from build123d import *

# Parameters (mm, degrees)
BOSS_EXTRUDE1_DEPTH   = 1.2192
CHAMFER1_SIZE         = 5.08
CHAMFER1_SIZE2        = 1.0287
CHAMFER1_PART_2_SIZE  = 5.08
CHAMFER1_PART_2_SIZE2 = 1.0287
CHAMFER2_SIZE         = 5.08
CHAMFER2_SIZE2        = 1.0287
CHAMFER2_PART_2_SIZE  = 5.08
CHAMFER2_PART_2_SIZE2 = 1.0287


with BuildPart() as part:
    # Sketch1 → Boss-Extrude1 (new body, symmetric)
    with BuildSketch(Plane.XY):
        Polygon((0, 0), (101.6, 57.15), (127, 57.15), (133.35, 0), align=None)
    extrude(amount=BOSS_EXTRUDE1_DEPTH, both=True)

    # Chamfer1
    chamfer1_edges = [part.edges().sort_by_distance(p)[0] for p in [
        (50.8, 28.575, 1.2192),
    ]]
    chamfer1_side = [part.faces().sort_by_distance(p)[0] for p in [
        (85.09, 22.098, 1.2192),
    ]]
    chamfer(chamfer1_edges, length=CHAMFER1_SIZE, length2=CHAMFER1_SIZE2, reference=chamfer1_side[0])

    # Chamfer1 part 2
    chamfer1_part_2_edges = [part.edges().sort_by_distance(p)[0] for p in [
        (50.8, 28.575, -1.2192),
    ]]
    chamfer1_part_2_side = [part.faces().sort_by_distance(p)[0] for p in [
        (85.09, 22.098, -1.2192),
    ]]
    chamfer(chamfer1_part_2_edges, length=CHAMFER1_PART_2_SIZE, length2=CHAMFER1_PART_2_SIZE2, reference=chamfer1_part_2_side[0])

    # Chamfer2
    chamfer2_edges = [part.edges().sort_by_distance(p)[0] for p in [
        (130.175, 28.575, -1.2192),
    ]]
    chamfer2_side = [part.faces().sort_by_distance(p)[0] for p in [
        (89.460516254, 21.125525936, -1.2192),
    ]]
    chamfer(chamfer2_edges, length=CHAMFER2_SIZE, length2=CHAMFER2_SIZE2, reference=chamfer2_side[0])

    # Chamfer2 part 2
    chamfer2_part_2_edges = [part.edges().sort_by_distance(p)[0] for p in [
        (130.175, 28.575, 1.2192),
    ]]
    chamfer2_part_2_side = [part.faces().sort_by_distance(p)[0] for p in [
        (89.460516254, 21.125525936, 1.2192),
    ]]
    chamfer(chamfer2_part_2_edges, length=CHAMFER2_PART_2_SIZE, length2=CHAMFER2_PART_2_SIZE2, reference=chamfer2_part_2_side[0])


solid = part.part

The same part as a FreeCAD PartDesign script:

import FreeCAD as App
import Part
import Sketcher
from FreeCAD import Vector
Q = App.Units.Quantity


def edges_at(feature, points):
    """Names of the edges that pass closest to the given points."""
    edges = feature.Shape.Edges
    near = lambda p: min(range(len(edges)), key=lambda i: edges[i].distToShape(Part.Vertex(*p))[0])
    return sorted({f"Edge{near(p) + 1}" for p in points})


def add_polygon(sketch, points):
    """Adds a closed chain of lines whose ends are joined by coincident constraints."""
    first, n = sketch.GeometryCount, len(points)
    for a, b in zip(points, points[1:] + points[:1]):
        sketch.addGeometry(Part.LineSegment(App.Vector(*a, 0), App.Vector(*b, 0)), False)
    for i in range(n):
        sketch.addConstraint(Sketcher.Constraint("Coincident", first + i, 2, first + (i + 1) % n, 1))

doc = App.newDocument("Part")
body = doc.addObject("PartDesign::Body", "Body")

sketch1 = body.newObject("Sketcher::SketchObject", "Sketch")
sketch1.AttachmentSupport = (doc.getObject("XY_Plane"), [""])
sketch1.MapMode = "FlatFace"
add_polygon(sketch1, [(102, 57), (0, 0), (133, 0), (127, 57)])
sketch1.addConstraint([
    Sketcher.Constraint("Horizontal", 1),
    Sketcher.Constraint("Horizontal", 3),
    Sketcher.Constraint("Coincident", 0, 2, -1, 1),
    Sketcher.Constraint("DistanceX", 3, 2, 3, 1, Q("1 in")),
    Sketcher.Constraint("DistanceX", -1, 1, 2, 2, Q("5 in")),
    Sketcher.Constraint("DistanceX", 1, 1, 1, 2, Q("5.25 in")),
    Sketcher.Constraint("DistanceY", -1, 1, 2, 2, Q("2.25 in")),
])
pad1 = body.newObject("PartDesign::Pad", "Pad")
pad1.Profile = sketch1
pad1.Length = Q("0.096 in")
pad1.Midplane = True
doc.recompute()

chamfer = body.newObject("PartDesign::Chamfer", "Chamfer")
chamfer.Base = (pad1, edges_at(pad1, [(50.8, 28.575, 1.219)]))
chamfer.ChamferType = "Two distances"
chamfer.Size = Q("0.2 in")
chamfer.Size2 = Q("0.0405 in")
chamfer.FlipDirection = True
doc.recompute()

chamfer2 = body.newObject("PartDesign::Chamfer", "Chamfer001")
chamfer2.Base = (chamfer, edges_at(chamfer, [(50.8, 28.575, -1.219)]))
chamfer2.ChamferType = "Two distances"
chamfer2.Size = Q("0.2 in")
chamfer2.Size2 = Q("0.0405 in")
chamfer2.FlipDirection = True
doc.recompute()

chamfer3 = body.newObject("PartDesign::Chamfer", "Chamfer002")
chamfer3.Base = (chamfer2, edges_at(chamfer2, [(130.175, 28.575, -1.219)]))
chamfer3.ChamferType = "Two distances"
chamfer3.Size = Q("0.2 in")
chamfer3.Size2 = Q("0.0405 in")
doc.recompute()

chamfer4 = body.newObject("PartDesign::Chamfer", "Chamfer003")
chamfer4.Base = (chamfer3, edges_at(chamfer3, [(130.175, 28.575, 1.219)]))
chamfer4.ChamferType = "Two distances"
chamfer4.Size = Q("0.2 in")
chamfer4.Size2 = Q("0.0405 in")
chamfer4.FlipDirection = True

doc.recompute()
